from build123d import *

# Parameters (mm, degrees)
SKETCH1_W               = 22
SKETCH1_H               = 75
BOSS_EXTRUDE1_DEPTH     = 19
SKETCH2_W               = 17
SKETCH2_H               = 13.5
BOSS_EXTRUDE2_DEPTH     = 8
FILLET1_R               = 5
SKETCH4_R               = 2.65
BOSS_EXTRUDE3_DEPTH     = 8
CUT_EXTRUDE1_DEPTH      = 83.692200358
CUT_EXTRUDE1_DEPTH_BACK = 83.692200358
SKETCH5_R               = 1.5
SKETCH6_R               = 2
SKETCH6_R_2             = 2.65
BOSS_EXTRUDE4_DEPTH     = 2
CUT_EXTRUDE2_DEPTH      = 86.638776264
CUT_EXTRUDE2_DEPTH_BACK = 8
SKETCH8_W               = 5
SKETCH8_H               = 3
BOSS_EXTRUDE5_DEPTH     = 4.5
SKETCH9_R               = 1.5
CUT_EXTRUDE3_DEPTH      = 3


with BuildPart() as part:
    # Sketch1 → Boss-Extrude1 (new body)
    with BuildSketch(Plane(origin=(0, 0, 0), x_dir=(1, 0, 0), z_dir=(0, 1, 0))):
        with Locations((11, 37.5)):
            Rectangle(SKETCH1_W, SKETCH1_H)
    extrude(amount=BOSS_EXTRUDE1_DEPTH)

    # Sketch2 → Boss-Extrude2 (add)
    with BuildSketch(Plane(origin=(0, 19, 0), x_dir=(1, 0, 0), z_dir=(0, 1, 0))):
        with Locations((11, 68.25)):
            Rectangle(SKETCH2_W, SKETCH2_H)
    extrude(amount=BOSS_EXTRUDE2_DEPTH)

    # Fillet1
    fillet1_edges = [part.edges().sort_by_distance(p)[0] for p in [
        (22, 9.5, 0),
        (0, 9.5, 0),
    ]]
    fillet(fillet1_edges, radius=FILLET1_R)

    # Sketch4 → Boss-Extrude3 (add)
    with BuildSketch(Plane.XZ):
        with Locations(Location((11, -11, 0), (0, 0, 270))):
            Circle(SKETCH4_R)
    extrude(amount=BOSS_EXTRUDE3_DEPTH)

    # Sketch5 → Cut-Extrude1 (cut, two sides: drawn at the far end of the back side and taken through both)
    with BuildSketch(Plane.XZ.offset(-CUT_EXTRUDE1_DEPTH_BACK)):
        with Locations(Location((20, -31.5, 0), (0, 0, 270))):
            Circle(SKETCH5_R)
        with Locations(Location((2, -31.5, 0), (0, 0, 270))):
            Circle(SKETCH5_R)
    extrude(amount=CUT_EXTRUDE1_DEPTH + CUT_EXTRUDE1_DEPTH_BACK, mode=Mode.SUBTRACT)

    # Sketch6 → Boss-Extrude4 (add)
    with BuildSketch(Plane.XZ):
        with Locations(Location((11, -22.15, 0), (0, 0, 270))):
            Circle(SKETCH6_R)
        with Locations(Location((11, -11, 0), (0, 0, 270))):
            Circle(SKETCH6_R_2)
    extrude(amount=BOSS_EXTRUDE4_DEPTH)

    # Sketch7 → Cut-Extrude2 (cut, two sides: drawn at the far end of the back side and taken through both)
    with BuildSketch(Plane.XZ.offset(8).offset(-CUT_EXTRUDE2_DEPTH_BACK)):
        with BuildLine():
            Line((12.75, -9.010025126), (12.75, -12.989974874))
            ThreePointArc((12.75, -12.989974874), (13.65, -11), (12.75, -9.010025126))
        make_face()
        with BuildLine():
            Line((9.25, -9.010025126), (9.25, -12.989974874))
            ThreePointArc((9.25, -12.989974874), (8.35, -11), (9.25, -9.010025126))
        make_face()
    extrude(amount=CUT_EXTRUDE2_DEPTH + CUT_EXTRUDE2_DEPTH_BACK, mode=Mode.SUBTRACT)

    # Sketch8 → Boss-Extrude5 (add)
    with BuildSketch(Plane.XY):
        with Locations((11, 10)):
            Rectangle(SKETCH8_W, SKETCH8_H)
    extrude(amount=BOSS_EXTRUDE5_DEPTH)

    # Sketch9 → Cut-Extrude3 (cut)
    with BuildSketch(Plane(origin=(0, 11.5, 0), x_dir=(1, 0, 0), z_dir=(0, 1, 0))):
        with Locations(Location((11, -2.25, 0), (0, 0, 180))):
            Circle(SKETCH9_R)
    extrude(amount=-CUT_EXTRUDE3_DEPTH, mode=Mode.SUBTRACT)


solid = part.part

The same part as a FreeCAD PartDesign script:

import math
import FreeCAD as App
import Part
import Sketcher

V = App.Vector


def edges_at(feature, points):
    """Names of the edges that pass closest to the given points."""
    edges = feature.Shape.Edges
    near = lambda p: min(range(len(edges)), key=lambda i: edges[i].distToShape(Part.Vertex(*p))[0])
    return sorted({f"Edge{near(p) + 1}" for p in points})

doc = App.newDocument("Part")
body = doc.addObject("PartDesign::Body", "Body")

# Sketch on XZ plane
sketch1 = body.newObject("Sketcher::SketchObject", "Sketch")
sketch1.AttachmentSupport = (doc.getObject("XZ_Plane"), [""])
sketch1.MapMode = "FlatFace"
sketch1.addGeometry([
    Part.LineSegment(V(0, -75, 0), V(0, 0, 0)),
    Part.LineSegment(V(0, 0, 0), V(22, 0, 0)),
    Part.LineSegment(V(22, 0, 0), V(22, -75, 0)),
    Part.LineSegment(V(22, -75, 0), V(0, -75, 0)),
], False)
sketch1.addConstraint([
    Sketcher.Constraint("Coincident", 0, 2, 1, 1),
    Sketcher.Constraint("Coincident", 1, 2, 2, 1),
    Sketcher.Constraint("Coincident", 2, 2, 3, 1),
    Sketcher.Constraint("Coincident", 3, 2, 0, 1),
    Sketcher.Constraint("Vertical", 0),
    Sketcher.Constraint("Horizontal", 1),
    Sketcher.Constraint("Vertical", 2),
    Sketcher.Constraint("Horizontal", 3),
    Sketcher.Constraint("Coincident", 0, 2, -1, 1),
    Sketcher.Constraint("DistanceX", 1, 1, 1, 2, 22.0),
    Sketcher.Constraint("DistanceY", 0, 1, 0, 2, 75.0),
])
pad1 = body.newObject("PartDesign::Pad", "Pad")
pad1.Profile = sketch1
pad1.Length = 19
pad1.Reversed = True

# Sketch on XZ plane
sketch2 = body.newObject("Sketcher::SketchObject", "Sketch001")
sketch2.AttachmentSupport = (doc.getObject("XZ_Plane"), [""])
sketch2.MapMode = "FlatFace"
sketch2.AttachmentOffset = App.Placement(V(0, 0, -19), App.Rotation())
sketch2.addGeometry([
    Part.LineSegment(V(2.5, -75, 0), V(2.5, -61.5, 0)),
    Part.LineSegment(V(2.5, -61.5, 0), V(19.5, -61.5, 0)),
    Part.LineSegment(V(19.5, -61.5, 0), V(19.5, -75, 0)),
    Part.LineSegment(V(19.5, -75, 0), V(2.5, -75, 0)),
], False)
sketch2.addConstraint([
    Sketcher.Constraint("Coincident", 0, 2, 1, 1),
    Sketcher.Constraint("Coincident", 1, 2, 2, 1),
    Sketcher.Constraint("Coincident", 2, 2, 3, 1),
    Sketcher.Constraint("Coincident", 3, 2, 0, 1),
    Sketcher.Constraint("Vertical", 0),
    Sketcher.Constraint("Horizontal", 1),
    Sketcher.Constraint("Vertical", 2),
    Sketcher.Constraint("Horizontal", 3),
    Sketcher.Constraint("DistanceX", 1, 1, 1, 2, 17.0),
    Sketcher.Constraint("DistanceY", 0, 1, 0, 2, 13.5),
    Sketcher.Constraint("DistanceY", 2, 2, -1, 1, 75.0),
    Sketcher.Constraint("DistanceX", -1, 1, 0, 2, 2.5),
])
pad2 = body.newObject("PartDesign::Pad", "Pad001")
pad2.Profile = sketch2
pad2.Length = 8
pad2.Reversed = True
doc.recompute()

fillet = body.newObject("PartDesign::Fillet", "Fillet")
fillet.Base = (pad2, edges_at(pad2, [(22, 9.5, 0), (0, 9.5, 0)]))
fillet.Radius = 5

# Sketch on XZ plane
sketch3 = body.newObject("Sketcher::SketchObject", "Sketch002")
sketch3.AttachmentSupport = (doc.getObject("XZ_Plane"), [""])
sketch3.MapMode = "FlatFace"
sketch3.addGeometry(Part.Circle(V(11, -11, 0), V(0, 0, 1), 2.65), False)
sketch3.addConstraint([
    Sketcher.Constraint("Diameter", 0, 5.3),
    Sketcher.Constraint("DistanceX", -1, 1, 0, 3, 11.0),
    Sketcher.Constraint("DistanceY", 0, 3, -1, 1, 11.0),
])
pad3 = body.newObject("PartDesign::Pad", "Pad002")
pad3.Profile = sketch3
pad3.Length = 8

# Sketch on XZ plane
sketch4 = body.newObject("Sketcher::SketchObject", "Sketch003")
sketch4.AttachmentSupport = (doc.getObject("XZ_Plane"), [""])
sketch4.MapMode = "FlatFace"
sketch4.addGeometry([
    Part.Circle(V(20, -31.5, 0), V(0, 0, 1), 1.5),
    Part.Circle(V(2, -31.5, 0), V(0, 0, 1), 1.5),
], False)
sketch4.addConstraint([
    Sketcher.Constraint("Equal", 0, 1),
    Sketcher.Constraint("Horizontal", 0, 3, 1, 3),
    Sketcher.Constraint("Diameter", 0, 3.0),
    Sketcher.Constraint("DistanceX", -1, 1, 0, 3, 20.0),
    Sketcher.Constraint("DistanceX", -1, 1, 1, 3, 2.0),
    Sketcher.Constraint("DistanceY", 0, 3, -1, 1, 31.5),
])
pocket1 = body.newObject("PartDesign::Pocket", "Pocket")
pocket1.Profile = sketch4
pocket1.Type = "ThroughAll"
pocket1.Midplane = True

# Sketch on XZ plane
sketch5 = body.newObject("Sketcher::SketchObject", "Sketch004")
sketch5.AttachmentSupport = (doc.getObject("XZ_Plane"), [""])
sketch5.MapMode = "FlatFace"
sketch5.addGeometry([
    Part.Circle(V(11, -22.15, 0), V(0, 0, 1), 2),
    Part.Circle(V(11, -11, 0), V(0, 0, 1), 2.65),
], False)
sketch5.addConstraint([
    Sketcher.Constraint("Vertical", 0, 3, 1, 3),
    Sketcher.Constraint("Diameter", 0, 4.0),
    Sketcher.Constraint("Diameter", 1, 5.3),
    Sketcher.Constraint("DistanceX", -1, 1, 0, 3, 11.0),
    Sketcher.Constraint("DistanceY", 1, 3, -1, 1, 11.0),
    Sketcher.Constraint("DistanceY", 0, 3, -1, 1, 22.15),
])
pad4 = body.newObject("PartDesign::Pad", "Pad003")
pad4.Profile = sketch5
pad4.Length = 2

# Sketch on XZ plane
sketch6 = body.newObject("Sketcher::SketchObject", "Sketch005")
sketch6.AttachmentSupport = (doc.getObject("XZ_Plane"), [""])
sketch6.MapMode = "FlatFace"
sketch6.AttachmentOffset = App.Placement(V(0, 0, 8), App.Rotation())
sketch6.addGeometry([
    Part.LineSegment(V(12.75, -9.010025, 0), V(12.75, -12.989975, 0)),
    Part.ArcOfCircle(Part.Circle(V(11, -11, 0), V(0, 0, 1), 2.65), math.radians(-48.671341), math.radians(48.671341)),
    Part.LineSegment(V(9.25, -12.989975, 0), V(9.25, -9.010025, 0)),
    Part.ArcOfCircle(Part.Circle(V(11, -11, 0), V(0, 0, 1), 2.65), math.radians(131.328659), math.radians(228.671341)),
], False)
sketch6.addConstraint([
    Sketcher.Constraint("Coincident", 0, 1, 1, 2),
    Sketcher.Constraint("Coincident", 1, 1, 0, 2),
    Sketcher.Constraint("Coincident", 2, 1, 3, 2),
    Sketcher.Constraint("Coincident", 3, 1, 2, 2),
    Sketcher.Constraint("Vertical", 0),
    Sketcher.Constraint("Vertical", 2),
    Sketcher.Constraint("Coincident", 3, 3, 1, 3),
    Sketcher.Constraint("Equal", 1, 3),
    Sketcher.Constraint("Horizontal", 1, 1, 2, 1),
    Sketcher.Constraint("Radius", 1, 2.65),
    Sketcher.Constraint("DistanceX", -1, 1, 1, 3, 11.0),
    Sketcher.Constraint("DistanceY", 1, 3, -1, 1, 11.0),
    Sketcher.Constraint("DistanceX", 2, 1, 1, 1, 3.5),
])
pocket2 = body.newObject("PartDesign::Pocket", "Pocket001")
pocket2.Profile = sketch6
pocket2.Type = "TwoLengths"
pocket2.Length = 86.638776
pocket2.Length2 = 8
pocket2.Reversed = True

# Sketch on XY plane
sketch7 = body.newObject("Sketcher::SketchObject", "Sketch006")
sketch7.AttachmentSupport = (doc.getObject("XY_Plane"), [""])
sketch7.MapMode = "FlatFace"
sketch7.addGeometry([
    Part.LineSegment(V(8.5, 11.5, 0), V(8.5, 8.5, 0)),
    Part.LineSegment(V(8.5, 8.5, 0), V(13.5, 8.5, 0)),
    Part.LineSegment(V(13.5, 8.5, 0), V(13.5, 11.5, 0)),
    Part.LineSegment(V(13.5, 11.5, 0), V(8.5, 11.5, 0)),
], False)
sketch7.addConstraint([
    Sketcher.Constraint("Coincident", 0, 2, 1, 1),
    Sketcher.Constraint("Coincident", 1, 2, 2, 1),
    Sketcher.Constraint("Coincident", 2, 2, 3, 1),
    Sketcher.Constraint("Coincident", 3, 2, 0, 1),
    Sketcher.Constraint("Vertical", 0),
    Sketcher.Constraint("Horizontal", 1),
    Sketcher.Constraint("Vertical", 2),
    Sketcher.Constraint("Horizontal", 3),
    Sketcher.Constraint("DistanceX", 1, 1, 1, 2, 5.0),
    Sketcher.Constraint("DistanceY", 0, 2, 0, 1, 3.0),
    Sketcher.Constraint("DistanceX", -1, 1, 0, 2, 8.5),
    Sketcher.Constraint("DistanceY", -1, 1, 0, 2, 8.5),
])
pad5 = body.newObject("PartDesign::Pad", "Pad004")
pad5.Profile = sketch7
pad5.Length = 4.5

# Sketch on XZ plane
sketch8 = body.newObject("Sketcher::SketchObject", "Sketch007")
sketch8.AttachmentSupport = (doc.getObject("XZ_Plane"), [""])
sketch8.MapMode = "FlatFace"
sketch8.AttachmentOffset = App.Placement(V(0, 0, -11.5), App.Rotation())
sketch8.addGeometry(Part.Circle(V(11, 2.25, 0), V(0, 0, 1), 1.5), False)
sketch8.addConstraint([
    Sketcher.Constraint("Diameter", 0, 3.0),
    Sketcher.Constraint("DistanceX", -1, 1, 0, 3, 11.0),
    Sketcher.Constraint("DistanceY", -1, 1, 0, 3, 2.25),
])
pocket3 = body.newObject("PartDesign::Pocket", "Pocket002")
pocket3.Profile = sketch8
pocket3.Length = 3
pocket3.Reversed = True

doc.recompute()
